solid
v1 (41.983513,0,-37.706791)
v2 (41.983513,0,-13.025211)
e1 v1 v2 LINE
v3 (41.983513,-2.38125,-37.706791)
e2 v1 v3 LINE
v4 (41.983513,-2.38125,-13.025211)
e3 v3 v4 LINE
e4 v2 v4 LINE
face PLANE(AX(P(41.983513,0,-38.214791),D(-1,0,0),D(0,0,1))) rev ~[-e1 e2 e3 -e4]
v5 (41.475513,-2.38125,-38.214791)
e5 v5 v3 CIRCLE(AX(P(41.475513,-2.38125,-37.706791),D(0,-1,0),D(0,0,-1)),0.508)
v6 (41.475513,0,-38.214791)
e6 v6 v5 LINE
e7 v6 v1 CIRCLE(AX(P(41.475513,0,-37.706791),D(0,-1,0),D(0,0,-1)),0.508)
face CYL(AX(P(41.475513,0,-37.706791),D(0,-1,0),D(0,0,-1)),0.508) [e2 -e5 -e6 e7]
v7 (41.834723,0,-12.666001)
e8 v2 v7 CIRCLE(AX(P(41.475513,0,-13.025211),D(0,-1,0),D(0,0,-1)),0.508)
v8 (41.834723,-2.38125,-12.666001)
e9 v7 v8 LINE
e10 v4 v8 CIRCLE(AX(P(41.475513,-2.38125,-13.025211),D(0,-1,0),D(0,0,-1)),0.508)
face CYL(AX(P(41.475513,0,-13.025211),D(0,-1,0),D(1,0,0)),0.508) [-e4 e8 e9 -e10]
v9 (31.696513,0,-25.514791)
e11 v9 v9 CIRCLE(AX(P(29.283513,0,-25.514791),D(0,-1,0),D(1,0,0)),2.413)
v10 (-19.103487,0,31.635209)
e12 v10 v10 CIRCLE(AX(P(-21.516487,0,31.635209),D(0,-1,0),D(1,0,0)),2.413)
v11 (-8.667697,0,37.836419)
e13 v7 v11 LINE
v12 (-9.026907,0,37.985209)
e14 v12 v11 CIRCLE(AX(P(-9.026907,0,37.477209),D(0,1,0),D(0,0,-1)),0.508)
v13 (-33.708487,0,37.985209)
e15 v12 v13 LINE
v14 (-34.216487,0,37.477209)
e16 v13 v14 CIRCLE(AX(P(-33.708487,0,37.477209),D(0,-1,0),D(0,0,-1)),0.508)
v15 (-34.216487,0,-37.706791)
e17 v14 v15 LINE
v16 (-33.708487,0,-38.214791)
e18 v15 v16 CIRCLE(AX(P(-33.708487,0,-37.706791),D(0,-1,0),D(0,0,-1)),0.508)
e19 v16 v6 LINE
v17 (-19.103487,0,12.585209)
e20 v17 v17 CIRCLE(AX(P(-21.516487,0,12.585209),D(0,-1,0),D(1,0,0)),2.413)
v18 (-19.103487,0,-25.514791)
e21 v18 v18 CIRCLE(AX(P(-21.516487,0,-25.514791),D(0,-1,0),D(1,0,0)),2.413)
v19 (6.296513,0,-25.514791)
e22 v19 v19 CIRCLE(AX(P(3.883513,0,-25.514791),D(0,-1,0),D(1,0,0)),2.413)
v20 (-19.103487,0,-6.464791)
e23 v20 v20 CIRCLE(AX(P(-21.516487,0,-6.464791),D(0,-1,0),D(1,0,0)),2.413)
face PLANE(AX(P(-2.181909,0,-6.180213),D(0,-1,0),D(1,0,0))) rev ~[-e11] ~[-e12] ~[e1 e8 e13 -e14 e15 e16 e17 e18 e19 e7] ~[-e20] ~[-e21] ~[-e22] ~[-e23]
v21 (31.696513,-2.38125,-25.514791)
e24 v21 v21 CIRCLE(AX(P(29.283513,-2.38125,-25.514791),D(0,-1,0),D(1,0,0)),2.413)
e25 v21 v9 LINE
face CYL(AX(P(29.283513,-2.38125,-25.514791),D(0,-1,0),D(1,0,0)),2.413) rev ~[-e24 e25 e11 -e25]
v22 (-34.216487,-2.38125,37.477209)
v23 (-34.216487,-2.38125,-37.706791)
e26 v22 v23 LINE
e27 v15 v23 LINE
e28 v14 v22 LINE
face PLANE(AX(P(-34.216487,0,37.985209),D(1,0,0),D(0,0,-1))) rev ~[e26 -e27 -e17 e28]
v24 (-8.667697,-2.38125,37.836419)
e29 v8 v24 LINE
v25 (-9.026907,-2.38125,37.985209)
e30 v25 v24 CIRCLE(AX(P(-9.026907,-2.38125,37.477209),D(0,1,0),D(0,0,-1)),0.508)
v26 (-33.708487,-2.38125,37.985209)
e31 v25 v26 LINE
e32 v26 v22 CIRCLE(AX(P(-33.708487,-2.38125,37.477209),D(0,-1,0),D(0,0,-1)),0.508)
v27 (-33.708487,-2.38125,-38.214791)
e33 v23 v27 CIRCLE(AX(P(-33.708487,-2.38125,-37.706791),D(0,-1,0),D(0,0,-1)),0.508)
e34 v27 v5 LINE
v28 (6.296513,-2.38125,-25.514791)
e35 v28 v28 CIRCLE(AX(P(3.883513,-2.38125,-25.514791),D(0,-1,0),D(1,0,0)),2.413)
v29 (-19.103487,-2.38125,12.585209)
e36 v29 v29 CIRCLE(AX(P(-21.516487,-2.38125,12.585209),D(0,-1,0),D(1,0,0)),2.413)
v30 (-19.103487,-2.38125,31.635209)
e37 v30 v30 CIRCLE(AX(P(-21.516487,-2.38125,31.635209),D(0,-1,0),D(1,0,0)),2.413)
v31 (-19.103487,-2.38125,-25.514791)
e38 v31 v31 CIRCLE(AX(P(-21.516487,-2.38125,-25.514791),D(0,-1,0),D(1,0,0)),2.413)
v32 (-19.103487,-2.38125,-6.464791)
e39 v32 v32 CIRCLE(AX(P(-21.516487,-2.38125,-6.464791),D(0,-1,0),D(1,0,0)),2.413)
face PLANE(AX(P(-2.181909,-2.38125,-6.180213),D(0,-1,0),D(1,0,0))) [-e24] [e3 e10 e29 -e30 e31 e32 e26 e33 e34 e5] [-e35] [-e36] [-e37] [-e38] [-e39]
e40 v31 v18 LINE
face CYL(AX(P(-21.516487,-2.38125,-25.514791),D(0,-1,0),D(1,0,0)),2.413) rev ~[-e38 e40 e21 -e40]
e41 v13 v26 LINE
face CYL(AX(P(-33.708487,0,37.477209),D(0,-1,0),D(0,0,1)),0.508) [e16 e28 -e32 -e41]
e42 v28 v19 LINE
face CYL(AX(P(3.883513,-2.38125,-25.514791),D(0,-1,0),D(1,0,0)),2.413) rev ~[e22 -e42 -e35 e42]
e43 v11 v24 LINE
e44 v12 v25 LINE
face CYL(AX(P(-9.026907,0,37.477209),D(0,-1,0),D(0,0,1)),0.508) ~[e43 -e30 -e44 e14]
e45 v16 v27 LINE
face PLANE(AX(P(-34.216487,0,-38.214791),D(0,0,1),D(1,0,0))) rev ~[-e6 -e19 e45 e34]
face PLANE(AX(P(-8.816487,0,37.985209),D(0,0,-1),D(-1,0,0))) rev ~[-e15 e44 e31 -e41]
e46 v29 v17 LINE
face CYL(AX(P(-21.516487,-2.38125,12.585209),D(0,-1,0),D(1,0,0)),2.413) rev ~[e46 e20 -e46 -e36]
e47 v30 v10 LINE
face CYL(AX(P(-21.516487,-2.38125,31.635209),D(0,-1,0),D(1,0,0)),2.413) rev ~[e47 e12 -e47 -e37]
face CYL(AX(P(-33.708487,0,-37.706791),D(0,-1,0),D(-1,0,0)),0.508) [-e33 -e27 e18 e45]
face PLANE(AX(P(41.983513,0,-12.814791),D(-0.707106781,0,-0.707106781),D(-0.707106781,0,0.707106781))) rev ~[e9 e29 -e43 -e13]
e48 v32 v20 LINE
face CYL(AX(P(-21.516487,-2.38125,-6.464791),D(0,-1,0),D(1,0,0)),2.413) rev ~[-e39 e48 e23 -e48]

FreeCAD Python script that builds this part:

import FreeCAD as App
import Part
import Sketcher
from FreeCAD import Vector
Q = App.Units.Quantity


def edges_at(feature, points):
    """Names of the edges that pass closest to the given points."""
    edges = feature.Shape.Edges
    near = lambda p: min(range(len(edges)), key=lambda i: edges[i].distToShape(Part.Vertex(*p))[0])
    return sorted({f"Edge{near(p) + 1}" for p in points})

doc = App.newDocument("Part")
body = doc.addObject("PartDesign::Body", "Body")

# Sketch on XZ plane
sketch1 = body.newObject("Sketcher::SketchObject", "Sketch")
sketch1.AttachmentSupport = (doc.getObject("XZ_Plane"), [""])
sketch1.MapMode = "FlatFace"
sketch1.addGeometry(Part.LineSegment(Vector(-9, 38, 0), Vector(-34, 38, 0)), False)
sketch1.addGeometry(Part.LineSegment(Vector(-34, 38, 0), Vector(-34, -38, 0)), False)
sketch1.addGeometry(Part.LineSegment(Vector(-34, -38, 0), Vector(42, -38, 0)), False)
sketch1.addGeometry(Part.LineSegment(Vector(42, -38, 0), Vector(42, -13, 0)), False)
sketch1.addGeometry(Part.LineSegment(Vector(42, -13, 0), Vector(-9, 38, 0)), False)
sketch1.addConstraint(Sketcher.Constraint("Coincident", 0, 2, 1, 1))
sketch1.addConstraint(Sketcher.Constraint("Coincident", 1, 2, 2, 1))
sketch1.addConstraint(Sketcher.Constraint("Coincident", 2, 2, 3, 1))
sketch1.addConstraint(Sketcher.Constraint("Coincident", 3, 2, 4, 1))
sketch1.addConstraint(Sketcher.Constraint("Coincident", 4, 2, 0, 1))
sketch1.addConstraint(Sketcher.Constraint("Horizontal", 0))
sketch1.addConstraint(Sketcher.Constraint("Vertical", 1))
sketch1.addConstraint(Sketcher.Constraint("Horizontal", 2))
sketch1.addConstraint(Sketcher.Constraint("Vertical", 3))
sketch1.addConstraint(Sketcher.Constraint("Equal", 2, 1))
sketch1.addConstraint(Sketcher.Constraint("Equal", 0, 3))
sketch1.addConstraint(Sketcher.Constraint("DistanceX", 0, 2, 0, 1, Q("1 in")))
sketch1.addConstraint(Sketcher.Constraint("DistanceX", 2, 1, 2, 2, Q("3 in")))
sketch1.addConstraint(Sketcher.Constraint("DistanceY", -1, 1, 0, 2, Q("37.985209 mm")))
sketch1.addConstraint(Sketcher.Constraint("DistanceX", 0, 2, -1, 1, Q("34.216487 mm")))
pad1 = body.newObject("PartDesign::Pad", "Pad")
pad1.Profile = sketch1
pad1.Length = Q("0.09375 in")
doc.recompute()

fillet = body.newObject("PartDesign::Fillet", "Fillet")
fillet.Base = (pad1, edges_at(pad1, [
    (-34.216, -1.191, 37.985),
    (-8.816, -1.191, 37.985),
    (-34.216, -1.191, -38.215),
    (41.984, -1.191, -12.815),
    (41.984, -1.191, -38.215),
]))
fillet.Radius = Q("0.02 in")

# Sketch on XZ plane
sketch2 = body.newObject("Sketcher::SketchObject", "Sketch001")
sketch2.AttachmentSupport = (doc.getObject("XZ_Plane"), [""])
sketch2.MapMode = "FlatFace"
sketch2.AttachmentOffset = App.Placement(Vector(0, 0, 0.09375 * 25.4), App.Rotation())
sketch2.addGeometry(Part.Circle(Vector(-21.5, 31.6, 0), Vector(0, 0, 1), 2.4), False)
sketch2.addGeometry(Part.Circle(Vector(-21.5, 12.6, 0), Vector(0, 0, 1), 2.4), False)
sketch2.addGeometry(Part.Circle(Vector(-21.5, -6.5, 0), Vector(0, 0, 1), 2.4), False)
sketch2.addGeometry(Part.Circle(Vector(-21.5, -25.5, 0), Vector(0, 0, 1), 2.4), False)
sketch2.addGeometry(Part.Circle(Vector(3.9, -25.5, 0), Vector(0, 0, 1), 2.4), False)
sketch2.addGeometry(Part.Circle(Vector(29.3, -25.5, 0), Vector(0, 0, 1), 2.4), False)
sketch2.addConstraint(Sketcher.Constraint("Equal", 0, 1))
sketch2.addConstraint(Sketcher.Constraint("Equal", 1, 2))
sketch2.addConstraint(Sketcher.Constraint("Equal", 2, 3))
sketch2.addConstraint(Sketcher.Constraint("Equal", 3, 4))
sketch2.addConstraint(Sketcher.Constraint("Equal", 4, 5))
sketch2.addConstraint(Sketcher.Constraint("Horizontal", 3, 3, 4, 3))
sketch2.addConstraint(Sketcher.Constraint("Horizontal", 4, 3, 5, 3))
sketch2.addConstraint(Sketcher.Constraint("Vertical", 0, 3, 1, 3))
sketch2.addConstraint(Sketcher.Constraint("Vertical", 1, 3, 2, 3))
sketch2.addConstraint(Sketcher.Constraint("Vertical", 2, 3, 3, 3))
sketch2.addConstraint(Sketcher.Constraint("Diameter", 0, Q("0.19 in")))
sketch2.addConstraint(Sketcher.Constraint("DistanceX", 3, 3, 4, 3, Q("1 in")))
sketch2.addConstraint(Sketcher.Constraint("DistanceX", 4, 3, 5, 3, Q("1 in")))
sketch2.addConstraint(Sketcher.Constraint("DistanceY", 2, 3, 0, 3, Q("1.5 in")))
sketch2.addConstraint(Sketcher.Constraint("DistanceY", 3, 3, 1, 3, Q("1.5 in")))
sketch2.addConstraint(Sketcher.Constraint("DistanceY", 1, 3, 0, 3, Q("0.75 in")))
sketch2.addConstraint(Sketcher.Constraint("DistanceY", -1, 1, 0, 3, Q("31.635209 mm")))
sketch2.addConstraint(Sketcher.Constraint("DistanceX", 0, 3, -1, 1, Q("21.516487 mm")))
pocket1 = body.newObject("PartDesign::Pocket", "Pocket")
pocket1.Profile = sketch2
pocket1.Length = Q("0.09375 in")

doc.recompute()
